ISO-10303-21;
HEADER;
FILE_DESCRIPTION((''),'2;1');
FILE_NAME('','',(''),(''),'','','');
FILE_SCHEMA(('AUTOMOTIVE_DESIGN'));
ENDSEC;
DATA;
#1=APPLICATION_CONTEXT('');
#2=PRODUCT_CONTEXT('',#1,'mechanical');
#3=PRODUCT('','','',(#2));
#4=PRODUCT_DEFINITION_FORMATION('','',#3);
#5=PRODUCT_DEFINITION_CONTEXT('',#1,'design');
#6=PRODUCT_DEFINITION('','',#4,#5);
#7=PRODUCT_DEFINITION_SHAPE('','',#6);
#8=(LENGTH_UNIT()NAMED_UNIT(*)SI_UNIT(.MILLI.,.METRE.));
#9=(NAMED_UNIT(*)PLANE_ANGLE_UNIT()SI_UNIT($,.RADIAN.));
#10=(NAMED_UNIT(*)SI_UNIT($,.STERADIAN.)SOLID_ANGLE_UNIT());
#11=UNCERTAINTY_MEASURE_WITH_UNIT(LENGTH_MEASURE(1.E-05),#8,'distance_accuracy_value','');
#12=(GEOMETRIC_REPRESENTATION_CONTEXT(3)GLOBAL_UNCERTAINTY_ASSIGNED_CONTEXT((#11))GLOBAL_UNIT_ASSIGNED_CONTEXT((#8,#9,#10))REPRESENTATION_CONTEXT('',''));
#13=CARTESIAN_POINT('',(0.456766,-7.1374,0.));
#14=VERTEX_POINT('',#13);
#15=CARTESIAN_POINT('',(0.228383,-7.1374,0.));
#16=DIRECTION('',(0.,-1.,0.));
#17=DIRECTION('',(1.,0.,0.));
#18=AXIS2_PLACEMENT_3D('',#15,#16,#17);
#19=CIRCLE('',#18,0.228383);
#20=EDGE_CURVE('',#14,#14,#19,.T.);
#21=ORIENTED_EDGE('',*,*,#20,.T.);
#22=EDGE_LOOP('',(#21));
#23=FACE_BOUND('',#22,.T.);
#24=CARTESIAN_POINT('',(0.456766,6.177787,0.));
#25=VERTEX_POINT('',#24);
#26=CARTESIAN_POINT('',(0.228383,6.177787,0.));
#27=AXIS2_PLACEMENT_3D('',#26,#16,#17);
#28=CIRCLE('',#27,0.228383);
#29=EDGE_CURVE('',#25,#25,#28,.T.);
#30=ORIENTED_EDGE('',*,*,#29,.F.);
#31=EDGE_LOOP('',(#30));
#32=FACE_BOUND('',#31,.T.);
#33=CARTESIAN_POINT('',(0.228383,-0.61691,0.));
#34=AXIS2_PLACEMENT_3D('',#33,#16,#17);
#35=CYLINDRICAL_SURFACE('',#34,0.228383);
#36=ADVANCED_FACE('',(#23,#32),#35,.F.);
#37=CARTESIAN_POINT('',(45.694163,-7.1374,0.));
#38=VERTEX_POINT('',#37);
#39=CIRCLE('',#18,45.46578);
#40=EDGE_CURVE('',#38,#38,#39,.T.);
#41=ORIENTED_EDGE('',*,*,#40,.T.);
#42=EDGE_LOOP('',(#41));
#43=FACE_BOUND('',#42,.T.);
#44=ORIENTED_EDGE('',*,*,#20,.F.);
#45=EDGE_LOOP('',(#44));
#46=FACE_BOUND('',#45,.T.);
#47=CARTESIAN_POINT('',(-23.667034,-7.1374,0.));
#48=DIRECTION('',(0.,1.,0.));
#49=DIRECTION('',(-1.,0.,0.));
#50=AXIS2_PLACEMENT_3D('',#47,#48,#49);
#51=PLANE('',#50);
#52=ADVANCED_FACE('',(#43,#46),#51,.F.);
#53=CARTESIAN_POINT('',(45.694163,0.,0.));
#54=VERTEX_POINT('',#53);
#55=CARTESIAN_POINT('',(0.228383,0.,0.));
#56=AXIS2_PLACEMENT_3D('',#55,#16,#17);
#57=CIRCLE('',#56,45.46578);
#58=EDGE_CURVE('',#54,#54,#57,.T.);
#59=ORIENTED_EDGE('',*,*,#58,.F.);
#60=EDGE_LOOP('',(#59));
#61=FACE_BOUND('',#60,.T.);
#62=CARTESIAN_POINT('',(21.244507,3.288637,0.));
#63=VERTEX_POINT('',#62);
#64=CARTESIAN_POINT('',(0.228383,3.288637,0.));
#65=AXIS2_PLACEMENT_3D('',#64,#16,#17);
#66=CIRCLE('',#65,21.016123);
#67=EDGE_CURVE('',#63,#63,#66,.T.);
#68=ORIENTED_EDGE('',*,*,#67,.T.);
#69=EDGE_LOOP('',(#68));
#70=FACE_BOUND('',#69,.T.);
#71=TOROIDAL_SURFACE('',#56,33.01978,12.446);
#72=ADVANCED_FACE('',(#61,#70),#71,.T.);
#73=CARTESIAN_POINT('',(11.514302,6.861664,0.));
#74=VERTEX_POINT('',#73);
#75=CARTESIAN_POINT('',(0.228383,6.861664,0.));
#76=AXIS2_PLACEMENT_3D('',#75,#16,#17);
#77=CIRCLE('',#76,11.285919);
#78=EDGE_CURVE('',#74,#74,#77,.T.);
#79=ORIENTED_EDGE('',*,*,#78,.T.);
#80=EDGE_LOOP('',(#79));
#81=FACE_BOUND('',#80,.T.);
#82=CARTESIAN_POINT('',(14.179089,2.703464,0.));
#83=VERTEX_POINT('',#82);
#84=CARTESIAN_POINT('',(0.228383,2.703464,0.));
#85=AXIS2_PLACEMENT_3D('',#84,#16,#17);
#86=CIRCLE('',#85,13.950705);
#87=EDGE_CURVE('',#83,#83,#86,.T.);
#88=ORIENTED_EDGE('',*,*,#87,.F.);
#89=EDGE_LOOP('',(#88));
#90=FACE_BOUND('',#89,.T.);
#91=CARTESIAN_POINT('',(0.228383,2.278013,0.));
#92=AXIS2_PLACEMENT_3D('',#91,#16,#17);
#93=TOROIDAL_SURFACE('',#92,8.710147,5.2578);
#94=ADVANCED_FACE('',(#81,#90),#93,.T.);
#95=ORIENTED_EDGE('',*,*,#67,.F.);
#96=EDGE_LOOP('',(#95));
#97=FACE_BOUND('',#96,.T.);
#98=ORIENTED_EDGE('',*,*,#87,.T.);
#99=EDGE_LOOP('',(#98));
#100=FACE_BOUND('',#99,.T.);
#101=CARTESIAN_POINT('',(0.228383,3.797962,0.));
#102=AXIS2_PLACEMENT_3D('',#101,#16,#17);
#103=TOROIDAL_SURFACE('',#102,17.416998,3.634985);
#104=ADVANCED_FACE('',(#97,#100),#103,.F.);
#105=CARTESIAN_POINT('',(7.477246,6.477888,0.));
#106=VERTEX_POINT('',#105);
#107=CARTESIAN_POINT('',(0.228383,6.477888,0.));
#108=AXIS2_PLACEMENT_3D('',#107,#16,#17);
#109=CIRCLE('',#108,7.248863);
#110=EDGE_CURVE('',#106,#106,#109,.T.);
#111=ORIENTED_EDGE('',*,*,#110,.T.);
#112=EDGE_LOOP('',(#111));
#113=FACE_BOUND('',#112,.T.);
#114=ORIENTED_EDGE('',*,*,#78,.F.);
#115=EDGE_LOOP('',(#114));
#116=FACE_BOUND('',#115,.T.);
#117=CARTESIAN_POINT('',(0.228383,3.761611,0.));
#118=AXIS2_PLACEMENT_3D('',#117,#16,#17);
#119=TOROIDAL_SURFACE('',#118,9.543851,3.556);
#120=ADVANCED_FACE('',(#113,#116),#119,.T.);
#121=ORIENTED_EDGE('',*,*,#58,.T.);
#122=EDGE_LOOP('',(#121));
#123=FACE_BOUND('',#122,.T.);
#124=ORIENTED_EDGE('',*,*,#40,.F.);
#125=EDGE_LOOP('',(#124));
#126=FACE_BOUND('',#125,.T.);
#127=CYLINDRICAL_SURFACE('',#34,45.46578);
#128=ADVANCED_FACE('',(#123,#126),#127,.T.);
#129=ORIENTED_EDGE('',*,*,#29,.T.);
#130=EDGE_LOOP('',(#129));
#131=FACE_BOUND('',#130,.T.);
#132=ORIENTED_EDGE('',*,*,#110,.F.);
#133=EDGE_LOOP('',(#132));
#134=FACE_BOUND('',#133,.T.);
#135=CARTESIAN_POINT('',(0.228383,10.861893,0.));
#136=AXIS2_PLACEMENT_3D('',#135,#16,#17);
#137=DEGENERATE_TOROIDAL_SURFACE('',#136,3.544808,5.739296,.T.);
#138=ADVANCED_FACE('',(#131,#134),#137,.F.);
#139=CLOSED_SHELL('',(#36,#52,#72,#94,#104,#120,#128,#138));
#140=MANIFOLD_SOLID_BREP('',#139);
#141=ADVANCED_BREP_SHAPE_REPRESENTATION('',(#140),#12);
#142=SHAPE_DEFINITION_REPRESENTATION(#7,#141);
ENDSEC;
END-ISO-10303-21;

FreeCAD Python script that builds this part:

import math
import FreeCAD as App
import Part
import Sketcher
from FreeCAD import Vector
Q = App.Units.Quantity

doc = App.newDocument("Part")
params = doc.addObject("Spreadsheet::Sheet", "Params")
for row, (alias, value) in enumerate([
    ("sketch1_radius", "0.14 in"),
    ("sketch1_radius2", "0.49 in"),
    ("sketch1_radius3", "0.207 in"),
    ("sketch1_width", "1.7809999 in"),
    ("sketch1_height", "0.281 in"),
    ("revolution_angle", "360 deg"),
], start=1):
    params.set(f"A{row}", alias)
    params.set(f"B{row}", "=" + value)
    params.setAlias(f"B{row}", alias)

body = doc.addObject("PartDesign::Body", "Body")

sketch1 = doc.addObject("Sketcher::SketchObject", "Sketch")
body.addObject(sketch1)
sketch1.AttachmentSupport = (doc.XY_Plane, [""])
sketch1.MapMode = "FlatFace"
sketch1.addGeometry(Part.ArcOfCircle(Part.Circle(Vector(-9.315468, 3.761611, 0), Vector(0, 0, 1), 3.556), math.radians(49.805464), math.radians(119.333709)), False)
sketch1.addGeometry(Part.ArcOfCircle(Part.Circle(Vector(-8.481764, 2.278013, 0), Vector(0, 0, 1), 5.2578), math.radians(119.333709), math.radians(175.358666)), False)
sketch1.addGeometry(Part.ArcOfCircle(Part.Circle(Vector(-17.188615, 3.797962, 0), Vector(0, 0, 1), 3.634985), math.radians(-171.945354), math.radians(-17.523751)), False)
sketch1.addGeometry(Part.ArcOfCircle(Part.Circle(Vector(-32.791397, 0, 0), Vector(0, 0, 1), 12.446), math.radians(15.321351), math.radians(180)), False)
sketch1.addGeometry(Part.LineSegment(Vector(-45.237397, 0, 0), Vector(-45.237397, -7.1374, 0)), False)
sketch1.addGeometry(Part.LineSegment(Vector(-45.237397, -7.1374, 0), Vector(0, -7.1374, 0)), False)
sketch1.addGeometry(Part.LineSegment(Vector(0, -7.1374, 0), Vector(0, 6.177787, 0)), False)
sketch1.addGeometry(Part.ArcOfCircle(Part.Circle(Vector(-3.316425, 10.861893, 0), Vector(0, 0, 1), 5.739296), math.radians(-130.194536), math.radians(-54.700866)), False)
sketch1.addGeometry(Part.LineSegment(Vector(0.228383, -7.1374, 0), Vector(0.228383, 10.861893, 0)), True)
sketch1.addConstraint(Sketcher.Constraint("Tangent", 0, 2, 1, 1))
sketch1.addConstraint(Sketcher.Constraint("Coincident", 1, 2, 2, 2))
sketch1.addConstraint(Sketcher.Constraint("Coincident", 2, 1, 3, 1))
sketch1.addConstraint(Sketcher.Constraint("Tangent", 3, 2, 4, 1))
sketch1.addConstraint(Sketcher.Constraint("Coincident", 4, 2, 5, 1))
sketch1.addConstraint(Sketcher.Constraint("Coincident", 5, 2, 6, 1))
sketch1.addConstraint(Sketcher.Constraint("Coincident", 6, 2, 7, 2))
sketch1.addConstraint(Sketcher.Constraint("Tangent", 7, 1, 0, 1))
sketch1.addConstraint(Sketcher.Constraint("Vertical", 4))
sketch1.addConstraint(Sketcher.Constraint("Horizontal", 5))
sketch1.addConstraint(Sketcher.Constraint("Vertical", 6))
sketch1.addConstraint(Sketcher.Constraint("Vertical", 8))
sketch1.addConstraint(Sketcher.Constraint("PointOnObject", 3, 3, -1))
sketch1.addConstraint(Sketcher.Constraint("PointOnObject", 5, 2, -2))
sketch1.addConstraint(Sketcher.Constraint("Horizontal", 5, 2, 8, 1))
sketch1.addConstraint(Sketcher.Constraint("Horizontal", 7, 3, 8, 2))
sketch1.addConstraint(Sketcher.Constraint("Radius", 0, Q("0.14 in")))
sketch1.addConstraint(Sketcher.Constraint("Radius", 3, Q("0.49 in")))
sketch1.addConstraint(Sketcher.Constraint("Radius", 1, Q("0.207 in")))
sketch1.addConstraint(Sketcher.Constraint("DistanceX", 5, 1, 5, 2, Q("1.7809999 in")))
sketch1.addConstraint(Sketcher.Constraint("DistanceY", 4, 2, 4, 1, Q("0.281 in")))
sketch1.addConstraint(Sketcher.Constraint("Radius", 2, Q("3.634985 mm")))
sketch1.addConstraint(Sketcher.Constraint("Radius", 7, Q("5.739296 mm")))
sketch1.addConstraint(Sketcher.Constraint("DistanceY", 1, 2, 0, 2, Q("4.158201 mm")))
sketch1.addConstraint(Sketcher.Constraint("DistanceY", 6, 2, 7, 1, Q("0.300101 mm")))
sketch1.addConstraint(Sketcher.Constraint("DistanceY", 6, 1, 6, 2, Q("13.315188 mm")))
sketch1.addConstraint(Sketcher.Constraint("DistanceY", 8, 1, 8, 2, Q("17.999293 mm")))
sketch1.addConstraint(Sketcher.Constraint("DistanceY", -1, 1, 2, 3, Q("3.797962 mm")))
sketch1.addConstraint(Sketcher.Constraint("DistanceX", 2, 1, -1, 1, Q("20.78774 mm")))
sketch1.addConstraint(Sketcher.Constraint("DistanceX", 0, 3, 8, 1, Q("9.543851 mm")))
sketch1.setExpression("Constraints[16]", "Params.sketch1_radius")
sketch1.setExpression("Constraints[17]", "Params.sketch1_radius2")
sketch1.setExpression("Constraints[18]", "Params.sketch1_radius3")
sketch1.setExpression("Constraints[19]", "Params.sketch1_width")
sketch1.setExpression("Constraints[20]", "Params.sketch1_height")
revolution = doc.addObject("PartDesign::Revolution", "Revolution")
body.addObject(revolution)
revolution.Profile = sketch1
revolution.ReferenceAxis = (sketch1, ["Axis0"])
revolution.setExpression("Angle", "Params.revolution_angle")

doc.recompute()
